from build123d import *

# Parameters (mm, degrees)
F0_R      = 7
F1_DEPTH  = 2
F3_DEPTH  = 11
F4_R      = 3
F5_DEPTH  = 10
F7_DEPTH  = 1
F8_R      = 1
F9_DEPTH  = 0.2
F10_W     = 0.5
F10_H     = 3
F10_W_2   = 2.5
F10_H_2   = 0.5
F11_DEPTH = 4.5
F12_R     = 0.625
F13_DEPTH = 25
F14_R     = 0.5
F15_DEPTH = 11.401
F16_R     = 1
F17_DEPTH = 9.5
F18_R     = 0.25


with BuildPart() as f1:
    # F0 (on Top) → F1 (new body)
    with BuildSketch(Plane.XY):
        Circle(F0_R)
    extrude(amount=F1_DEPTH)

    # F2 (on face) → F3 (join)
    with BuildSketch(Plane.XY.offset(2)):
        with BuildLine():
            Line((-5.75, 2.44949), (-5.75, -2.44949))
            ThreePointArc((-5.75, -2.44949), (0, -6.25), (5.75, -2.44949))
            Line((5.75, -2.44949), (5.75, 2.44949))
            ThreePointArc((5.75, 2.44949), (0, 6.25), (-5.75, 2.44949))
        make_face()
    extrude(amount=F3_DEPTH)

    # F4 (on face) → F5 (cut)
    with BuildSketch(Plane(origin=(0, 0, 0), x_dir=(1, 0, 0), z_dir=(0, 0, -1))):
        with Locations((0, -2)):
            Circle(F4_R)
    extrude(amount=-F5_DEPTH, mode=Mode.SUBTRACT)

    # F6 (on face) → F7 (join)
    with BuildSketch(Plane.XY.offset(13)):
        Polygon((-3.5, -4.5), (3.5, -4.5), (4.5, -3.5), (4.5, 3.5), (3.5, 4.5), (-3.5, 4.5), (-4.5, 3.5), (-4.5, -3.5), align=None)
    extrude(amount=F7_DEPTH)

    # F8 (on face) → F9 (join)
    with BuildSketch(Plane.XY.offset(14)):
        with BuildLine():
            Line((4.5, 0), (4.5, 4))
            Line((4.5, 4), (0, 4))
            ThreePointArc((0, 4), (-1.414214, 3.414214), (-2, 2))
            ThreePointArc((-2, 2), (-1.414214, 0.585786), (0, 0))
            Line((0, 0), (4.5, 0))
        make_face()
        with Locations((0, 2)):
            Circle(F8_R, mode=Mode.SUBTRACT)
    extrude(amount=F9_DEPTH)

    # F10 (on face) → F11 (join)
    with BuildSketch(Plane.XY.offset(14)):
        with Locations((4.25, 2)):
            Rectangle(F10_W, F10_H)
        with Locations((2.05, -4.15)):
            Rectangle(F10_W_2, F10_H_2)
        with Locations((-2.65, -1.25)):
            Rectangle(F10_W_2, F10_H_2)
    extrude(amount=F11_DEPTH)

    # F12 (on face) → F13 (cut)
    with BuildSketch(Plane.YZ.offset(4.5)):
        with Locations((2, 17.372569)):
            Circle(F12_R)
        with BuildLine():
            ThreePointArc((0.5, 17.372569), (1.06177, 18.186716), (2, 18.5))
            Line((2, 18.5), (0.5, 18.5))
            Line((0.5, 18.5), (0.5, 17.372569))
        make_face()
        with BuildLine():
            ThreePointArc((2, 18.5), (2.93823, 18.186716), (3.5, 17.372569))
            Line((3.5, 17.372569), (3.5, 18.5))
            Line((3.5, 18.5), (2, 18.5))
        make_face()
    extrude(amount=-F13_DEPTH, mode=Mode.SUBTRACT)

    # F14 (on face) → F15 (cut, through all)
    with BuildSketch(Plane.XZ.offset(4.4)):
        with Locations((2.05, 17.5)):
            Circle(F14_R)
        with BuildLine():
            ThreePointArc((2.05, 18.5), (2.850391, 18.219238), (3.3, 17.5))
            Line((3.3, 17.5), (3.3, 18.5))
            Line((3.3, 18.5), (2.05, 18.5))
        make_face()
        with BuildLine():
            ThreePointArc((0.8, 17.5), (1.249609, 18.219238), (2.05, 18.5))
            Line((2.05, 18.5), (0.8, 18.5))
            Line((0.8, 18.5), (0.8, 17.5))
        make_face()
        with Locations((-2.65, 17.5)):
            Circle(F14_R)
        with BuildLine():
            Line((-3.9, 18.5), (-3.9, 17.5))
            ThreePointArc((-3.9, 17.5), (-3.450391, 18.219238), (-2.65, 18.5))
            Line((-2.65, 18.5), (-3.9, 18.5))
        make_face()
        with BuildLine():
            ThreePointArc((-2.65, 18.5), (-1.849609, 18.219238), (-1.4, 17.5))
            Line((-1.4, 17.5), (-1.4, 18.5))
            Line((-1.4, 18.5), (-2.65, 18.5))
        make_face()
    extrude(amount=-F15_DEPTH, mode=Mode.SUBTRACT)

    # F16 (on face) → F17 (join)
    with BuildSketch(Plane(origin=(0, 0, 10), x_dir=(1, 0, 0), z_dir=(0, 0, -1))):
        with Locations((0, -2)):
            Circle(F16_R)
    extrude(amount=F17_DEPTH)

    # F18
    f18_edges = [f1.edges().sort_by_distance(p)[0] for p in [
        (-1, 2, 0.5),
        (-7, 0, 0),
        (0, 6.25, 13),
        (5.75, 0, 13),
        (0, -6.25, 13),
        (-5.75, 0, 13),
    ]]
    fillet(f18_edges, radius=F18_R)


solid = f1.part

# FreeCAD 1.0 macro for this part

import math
import FreeCAD as App
import Part
import Sketcher
from FreeCAD import Vector
Q = App.Units.Quantity


def edges_at(feature, points):
    """Names of the edges that pass closest to the given points."""
    edges = feature.Shape.Edges
    near = lambda p: min(range(len(edges)), key=lambda i: edges[i].distToShape(Part.Vertex(*p))[0])
    return sorted({f"Edge{near(p) + 1}" for p in points})

doc = App.newDocument("Part")
body = doc.addObject("PartDesign::Body", "Body")

sketch1 = doc.addObject("Sketcher::SketchObject", "Sketch")
body.addObject(sketch1)
sketch1.AttachmentSupport = (doc.XY_Plane, [""])
sketch1.MapMode = "FlatFace"
sketch1.addGeometry(Part.Circle(Vector(0, 0, 0), Vector(0, 0, 1), 7), False)
sketch1.addConstraint([
    Sketcher.Constraint("Coincident", 0, 3, -1, 1),
    Sketcher.Constraint("Diameter", 0, Q("14 mm")),
])
pad1 = doc.addObject("PartDesign::Pad", "Pad")
body.addObject(pad1)
pad1.Profile = sketch1
pad1.Length = 2

sketch2 = doc.addObject("Sketcher::SketchObject", "Sketch001")
body.addObject(sketch2)
sketch2.AttachmentSupport = (doc.XY_Plane, [""])
sketch2.MapMode = "FlatFace"
sketch2.AttachmentOffset = App.Placement(Vector(0, 0, 2), App.Rotation())
sketch2.addGeometry([
    Part.LineSegment(Vector(-5.8, 2.4, 0), Vector(-5.8, -2.4, 0)),
    Part.ArcOfCircle(Part.Circle(Vector(0, 0, 0), Vector(0, 0, 1), 6.3), math.radians(-157), math.radians(-23)),
    Part.LineSegment(Vector(5.8, -2.4, 0), Vector(5.8, 2.4, 0)),
    Part.ArcOfCircle(Part.Circle(Vector(0, 0, 0), Vector(0, 0, 1), 6.3), math.radians(23), math.radians(157)),
], False)
sketch2.addConstraint([
    Sketcher.Constraint("Coincident", 0, 2, 1, 1),
    Sketcher.Constraint("Coincident", 1, 2, 2, 1),
    Sketcher.Constraint("Coincident", 2, 2, 3, 1),
    Sketcher.Constraint("Coincident", 3, 2, 0, 1),
    Sketcher.Constraint("Vertical", 0),
    Sketcher.Constraint("Vertical", 2),
    Sketcher.Constraint("Coincident", 1, 3, -1, 1),
    Sketcher.Constraint("Coincident", 3, 3, -1, 1),
    Sketcher.Constraint("Equal", 1, 3),
    Sketcher.Constraint("Horizontal", 0, 2, 1, 2),
    Sketcher.Constraint("Radius", 1, Q("6.25 mm")),
    Sketcher.Constraint("DistanceX", 0, 2, 1, 2, Q("11.5 mm")),
])
pad2 = doc.addObject("PartDesign::Pad", "Pad001")
body.addObject(pad2)
pad2.Profile = sketch2
pad2.Length = 11

sketch3 = doc.addObject("Sketcher::SketchObject", "Sketch002")
body.addObject(sketch3)
sketch3.AttachmentSupport = (doc.XY_Plane, [""])
sketch3.MapMode = "FlatFace"
sketch3.addGeometry(Part.Circle(Vector(0, 2, 0), Vector(0, 0, 1), 3), False)
sketch3.addConstraint([
    Sketcher.Constraint("PointOnObject", 0, 3, -2),
    Sketcher.Constraint("Diameter", 0, Q("6 mm")),
    Sketcher.Constraint("DistanceY", -1, 1, 0, 3, Q("2 mm")),
])
pocket1 = doc.addObject("PartDesign::Pocket", "Pocket")
body.addObject(pocket1)
pocket1.Profile = sketch3
pocket1.Length = 10
pocket1.Reversed = True

sketch4 = doc.addObject("Sketcher::SketchObject", "Sketch003")
body.addObject(sketch4)
sketch4.AttachmentSupport = (doc.XY_Plane, [""])
sketch4.MapMode = "FlatFace"
sketch4.AttachmentOffset = App.Placement(Vector(0, 0, 13), App.Rotation())
sketch4.addGeometry([
    Part.LineSegment(Vector(-3.5, -4.5, 0), Vector(3.5, -4.5, 0)),
    Part.LineSegment(Vector(3.5, -4.5, 0), Vector(4.5, -3.5, 0)),
    Part.LineSegment(Vector(4.5, -3.5, 0), Vector(4.5, 3.5, 0)),
    Part.LineSegment(Vector(4.5, 3.5, 0), Vector(3.5, 4.5, 0)),
    Part.LineSegment(Vector(3.5, 4.5, 0), Vector(-3.5, 4.5, 0)),
    Part.LineSegment(Vector(-3.5, 4.5, 0), Vector(-4.5, 3.5, 0)),
    Part.LineSegment(Vector(-4.5, 3.5, 0), Vector(-4.5, -3.5, 0)),
    Part.LineSegment(Vector(-4.5, -3.5, 0), Vector(-3.5, -4.5, 0)),
], False)
sketch4.addConstraint([
    Sketcher.Constraint("Coincident", 0, 2, 1, 1),
    Sketcher.Constraint("Coincident", 1, 2, 2, 1),
    Sketcher.Constraint("Coincident", 2, 2, 3, 1),
    Sketcher.Constraint("Coincident", 3, 2, 4, 1),
    Sketcher.Constraint("Coincident", 4, 2, 5, 1),
    Sketcher.Constraint("Coincident", 5, 2, 6, 1),
    Sketcher.Constraint("Coincident", 6, 2, 7, 1),
    Sketcher.Constraint("Coincident", 7, 2, 0, 1),
    Sketcher.Constraint("Horizontal", 0),
    Sketcher.Constraint("Vertical", 2),
    Sketcher.Constraint("Horizontal", 4),
    Sketcher.Constraint("Vertical", 6),
    Sketcher.Constraint("Symmetric", 0, 2, 4, 2, -1, 1),
    Sketcher.Constraint("Symmetric", 1, 2, 5, 2, -1, 1),
    Sketcher.Constraint("Perpendicular", 1, 3),
    Sketcher.Constraint("Perpendicular", 5, 7),
    Sketcher.Constraint("Horizontal", 2, 2, 5, 2),
    Sketcher.Constraint("Horizontal", 1, 2, 6, 2),
    Sketcher.Constraint("Vertical", 0, 2, 3, 2),
    Sketcher.Constraint("Equal", 4, 2),
    Sketcher.Constraint("DistanceX", 0, 1, 0, 2, Q("7 mm")),
    Sketcher.Constraint("DistanceX", 0, 2, 1, 2, Q("1 mm")),
])
pad3 = doc.addObject("PartDesign::Pad", "Pad002")
body.addObject(pad3)
pad3.Profile = sketch4
pad3.Length = 1

sketch5 = doc.addObject("Sketcher::SketchObject", "Sketch004")
body.addObject(sketch5)
sketch5.AttachmentSupport = (doc.XY_Plane, [""])
sketch5.MapMode = "FlatFace"
sketch5.AttachmentOffset = App.Placement(Vector(0, 0, 14), App.Rotation())
sketch5.addGeometry([
    Part.LineSegment(Vector(4.5, 0, 0), Vector(4.5, 4, 0)),
    Part.LineSegment(Vector(4.5, 4, 0), Vector(0, 4, 0)),
    Part.ArcOfCircle(Part.Circle(Vector(0, 2, 0), Vector(0, 0, 1), 2), math.radians(90), math.radians(180)),
    Part.ArcOfCircle(Part.Circle(Vector(0, 2, 0), Vector(0, 0, 1), 2), math.radians(180), math.radians(270)),
    Part.LineSegment(Vector(0, 0, 0), Vector(4.5, 0, 0)),
    Part.Circle(Vector(0, 2, 0), Vector(0, 0, 1), 1),
], False)
sketch5.addConstraint([
    Sketcher.Constraint("Coincident", 0, 2, 1, 1),
    Sketcher.Constraint("Tangent", 1, 2, 2, 1),
    Sketcher.Constraint("Tangent", 2, 2, 3, 1),
    Sketcher.Constraint("Tangent", 3, 2, 4, 1),
    Sketcher.Constraint("Coincident", 4, 2, 0, 1),
    Sketcher.Constraint("Vertical", 0),
    Sketcher.Constraint("Horizontal", 1),
    Sketcher.Constraint("Horizontal", 4),
    Sketcher.Constraint("Coincident", 3, 2, -1, 1),
    Sketcher.Constraint("Coincident", 5, 3, 2, 3),
    Sketcher.Constraint("Equal", 2, 3),
    Sketcher.Constraint("Horizontal", 5, 3, 2, 2),
    Sketcher.Constraint("Diameter", 5, Q("2 mm")),
    Sketcher.Constraint("Radius", 2, Q("1.999999 mm")),
    Sketcher.Constraint("DistanceX", 1, 2, 1, 1, Q("4.5 mm")),
])
pad4 = doc.addObject("PartDesign::Pad", "Pad003")
body.addObject(pad4)
pad4.Profile = sketch5
pad4.Length = 0.2

sketch6 = doc.addObject("Sketcher::SketchObject", "Sketch005")
body.addObject(sketch6)
sketch6.AttachmentSupport = (doc.XY_Plane, [""])
sketch6.MapMode = "FlatFace"
sketch6.AttachmentOffset = App.Placement(Vector(0, 0, 14), App.Rotation())
sketch6.addGeometry([
    Part.LineSegment(Vector(4, 3.5, 0), Vector(4, 0.5, 0)),
    Part.LineSegment(Vector(4, 0.5, 0), Vector(4.5, 0.5, 0)),
    Part.LineSegment(Vector(4.5, 0.5, 0), Vector(4.5, 3.5, 0)),
    Part.LineSegment(Vector(4.5, 3.5, 0), Vector(4, 3.5, 0)),
    Part.LineSegment(Vector(0.8, -3.9, 0), Vector(0.8, -4.4, 0)),
    Part.LineSegment(Vector(0.8, -4.4, 0), Vector(3.3, -4.4, 0)),
    Part.LineSegment(Vector(3.3, -4.4, 0), Vector(3.3, -3.9, 0)),
    Part.LineSegment(Vector(3.3, -3.9, 0), Vector(0.8, -3.9, 0)),
    Part.LineSegment(Vector(-3.9, -1, 0), Vector(-3.9, -1.5, 0)),
    Part.LineSegment(Vector(-3.9, -1.5, 0), Vector(-1.4, -1.5, 0)),
    Part.LineSegment(Vector(-1.4, -1.5, 0), Vector(-1.4, -1, 0)),
    Part.LineSegment(Vector(-1.4, -1, 0), Vector(-3.9, -1, 0)),
], False)
sketch6.addConstraint([
    Sketcher.Constraint("Coincident", 0, 2, 1, 1),
    Sketcher.Constraint("Coincident", 1, 2, 2, 1),
    Sketcher.Constraint("Coincident", 2, 2, 3, 1),
    Sketcher.Constraint("Coincident", 3, 2, 0, 1),
    Sketcher.Constraint("Coincident", 4, 2, 5, 1),
    Sketcher.Constraint("Coincident", 5, 2, 6, 1),
    Sketcher.Constraint("Coincident", 6, 2, 7, 1),
    Sketcher.Constraint("Coincident", 7, 2, 4, 1),
    Sketcher.Constraint("Coincident", 8, 2, 9, 1),
    Sketcher.Constraint("Coincident", 9, 2, 10, 1),
    Sketcher.Constraint("Coincident", 10, 2, 11, 1),
    Sketcher.Constraint("Coincident", 11, 2, 8, 1),
    Sketcher.Constraint("Vertical", 0),
    Sketcher.Constraint("Horizontal", 1),
    Sketcher.Constraint("Vertical", 2),
    Sketcher.Constraint("Horizontal", 3),
    Sketcher.Constraint("Vertical", 4),
    Sketcher.Constraint("Horizontal", 5),
    Sketcher.Constraint("Vertical", 6),
    Sketcher.Constraint("Horizontal", 7),
    Sketcher.Constraint("Vertical", 8),
    Sketcher.Constraint("Horizontal", 9),
    Sketcher.Constraint("Vertical", 10),
    Sketcher.Constraint("Horizontal", 11),
    Sketcher.Constraint("Equal", 7, 9),
    Sketcher.Constraint("Equal", 3, 4),
    Sketcher.Constraint("Equal", 6, 8),
    Sketcher.Constraint("DistanceY", 0, 2, 0, 1, Q("3 mm")),
    Sketcher.Constraint("DistanceX", 1, 1, 1, 2, Q("0.5 mm")),
    Sketcher.Constraint("DistanceX", 5, 1, 5, 2, Q("2.5 mm")),
    Sketcher.Constraint("DistanceX", -1, 1, 0, 2, Q("4 mm")),
    Sketcher.Constraint("DistanceY", 10, 2, -1, 1, Q("1 mm")),
    Sketcher.Constraint("DistanceY", 8, 2, 0, 2, Q("2 mm")),
    Sketcher.Constraint("DistanceX", -1, 1, 4, 2, Q("0.8 mm")),
    Sketcher.Constraint("DistanceY", 4, 2, -1, 1, Q("4.4 mm")),
    Sketcher.Constraint("DistanceX", 8, 2, -1, 1, Q("3.9 mm")),
])
pad5 = doc.addObject("PartDesign::Pad", "Pad004")
body.addObject(pad5)
pad5.Profile = sketch6
pad5.Length = 4.5

sketch7 = doc.addObject("Sketcher::SketchObject", "Sketch006")
body.addObject(sketch7)
sketch7.AttachmentSupport = (doc.YZ_Plane, [""])
sketch7.MapMode = "FlatFace"
sketch7.AttachmentOffset = App.Placement(Vector(0, 0, 4.5), App.Rotation())
sketch7.addGeometry([
    Part.Circle(Vector(2, 17.4, 0), Vector(0, 0, 1), 0.6),
    Part.ArcOfCircle(Part.Circle(Vector(2, 16.9, 0), Vector(0, 0, 1), 1.6), math.radians(90), math.radians(164)),
    Part.LineSegment(Vector(2, 18.5, 0), Vector(0.5, 18.5, 0)),
    Part.LineSegment(Vector(0.5, 18.5, 0), Vector(0.5, 17.4, 0)),
    Part.ArcOfCircle(Part.Circle(Vector(2, 16.9, 0), Vector(0, 0, 1), 1.6), math.radians(16), math.radians(90)),
    Part.LineSegment(Vector(3.5, 17.4, 0), Vector(3.5, 18.5, 0)),
    Part.LineSegment(Vector(3.5, 18.5, 0), Vector(2, 18.5, 0)),
], False)
sketch7.addConstraint([
    Sketcher.Constraint("Tangent", 1, 1, 2, 1),
    Sketcher.Constraint("Coincident", 2, 2, 3, 1),
    Sketcher.Constraint("Coincident", 3, 2, 1, 2),
    Sketcher.Constraint("Coincident", 4, 1, 5, 1),
    Sketcher.Constraint("Coincident", 5, 2, 6, 1),
    Sketcher.Constraint("Tangent", 6, 2, 4, 2),
    Sketcher.Constraint("Horizontal", 2),
    Sketcher.Constraint("Vertical", 3),
    Sketcher.Constraint("Vertical", 5),
    Sketcher.Constraint("Horizontal", 6),
    Sketcher.Constraint("Coincident", 4, 3, 1, 3),
    Sketcher.Constraint("Equal", 1, 4),
    Sketcher.Constraint("Horizontal", 0, 3, 3, 2),
    Sketcher.Constraint("Horizontal", 3, 2, 4, 1),
    Sketcher.Constraint("Vertical", 0, 3, 1, 3),
    Sketcher.Constraint("Diameter", 0, Q("1.25 mm")),
    Sketcher.Constraint("DistanceX", 2, 2, 2, 1, Q("1.5 mm")),
    Sketcher.Constraint("DistanceX", -1, 1, 0, 3, Q("2 mm")),
    Sketcher.Constraint("DistanceY", -1, 1, 1, 1, Q("18.5 mm")),
    Sketcher.Constraint("Radius", 1, Q("1.56156 mm")),
])
pocket2 = doc.addObject("PartDesign::Pocket", "Pocket001")
body.addObject(pocket2)
pocket2.Profile = sketch7
pocket2.Length = 25

sketch8 = doc.addObject("Sketcher::SketchObject", "Sketch007")
body.addObject(sketch8)
sketch8.AttachmentSupport = (doc.XZ_Plane, [""])
sketch8.MapMode = "FlatFace"
sketch8.AttachmentOffset = App.Placement(Vector(0, 0, 4.4), App.Rotation())
sketch8.addGeometry([
    Part.Circle(Vector(2, 17.5, 0), Vector(0, 0, 1), 0.5),
    Part.ArcOfCircle(Part.Circle(Vector(2.1, 17.2, 0), Vector(0, 0, 1), 1.3), math.radians(13), math.radians(90)),
    Part.LineSegment(Vector(3.3, 17.5, 0), Vector(3.3, 18.5, 0)),
    Part.LineSegment(Vector(3.3, 18.5, 0), Vector(2, 18.5, 0)),
    Part.ArcOfCircle(Part.Circle(Vector(2, 17.2, 0), Vector(0, 0, 1), 1.3), math.radians(90), math.radians(167)),
    Part.LineSegment(Vector(2, 18.5, 0), Vector(0.8, 18.5, 0)),
    Part.LineSegment(Vector(0.8, 18.5, 0), Vector(0.8, 17.5, 0)),
    Part.Circle(Vector(-2.6, 17.5, 0), Vector(0, 0, 1), 0.5),
    Part.LineSegment(Vector(-3.9, 18.5, 0), Vector(-3.9, 17.5, 0)),
    Part.ArcOfCircle(Part.Circle(Vector(-2.7, 17.2, 0), Vector(0, 0, 1), 1.3), math.radians(90), math.radians(167)),
    Part.LineSegment(Vector(-2.6, 18.5, 0), Vector(-3.9, 18.5, 0)),
    Part.ArcOfCircle(Part.Circle(Vector(-2.6, 17.2, 0), Vector(0, 0, 1), 1.3), math.radians(13), math.radians(90)),
    Part.LineSegment(Vector(-1.4, 17.5, 0), Vector(-1.4, 18.5, 0)),
    Part.LineSegment(Vector(-1.4, 18.5, 0), Vector(-2.6, 18.5, 0)),
], False)
sketch8.addConstraint([
    Sketcher.Constraint("Coincident", 1, 1, 2, 1),
    Sketcher.Constraint("Coincident", 2, 2, 3, 1),
    Sketcher.Constraint("Tangent", 3, 2, 1, 2),
    Sketcher.Constraint("Tangent", 4, 1, 5, 1),
    Sketcher.Constraint("Coincident", 5, 2, 6, 1),
    Sketcher.Constraint("Coincident", 6, 2, 4, 2),
    Sketcher.Constraint("Coincident", 8, 2, 9, 2),
    Sketcher.Constraint("Tangent", 9, 1, 10, 1),
    Sketcher.Constraint("Coincident", 10, 2, 8, 1),
    Sketcher.Constraint("Coincident", 11, 1, 12, 1),
    Sketcher.Constraint("Coincident", 12, 2, 13, 1),
    Sketcher.Constraint("Tangent", 13, 2, 11, 2),
    Sketcher.Constraint("Vertical", 2),
    Sketcher.Constraint("Horizontal", 3),
    Sketcher.Constraint("Horizontal", 5),
    Sketcher.Constraint("Vertical", 6),
    Sketcher.Constraint("Vertical", 8),
    Sketcher.Constraint("Horizontal", 10),
    Sketcher.Constraint("Vertical", 12),
    Sketcher.Constraint("Horizontal", 13),
    Sketcher.Constraint("Coincident", 4, 3, 1, 3),
    Sketcher.Constraint("Coincident", 11, 3, 9, 3),
    Sketcher.Constraint("Equal", 1, 4),
    Sketcher.Constraint("Equal", 0, 7),
    Sketcher.Constraint("Equal", 4, 9),
    Sketcher.Constraint("Equal", 9, 11),
    Sketcher.Constraint("Horizontal", 0, 3, 7, 3),
    Sketcher.Constraint("Horizontal", 4, 3, 9, 3),
    Sketcher.Constraint("Horizontal", 7, 3, 1, 1),
    Sketcher.Constraint("Horizontal", 1, 1, 6, 2),
    Sketcher.Constraint("Horizontal", 6, 2, 8, 2),
    Sketcher.Constraint("Horizontal", 8, 2, 11, 1),
    Sketcher.Constraint("Vertical", 0, 3, 1, 3),
    Sketcher.Constraint("Vertical", 7, 3, 9, 3),
    Sketcher.Constraint("Diameter", 0, Q("1 mm")),
    Sketcher.Constraint("DistanceY", 2, 1, 2, 2, Q("1 mm")),
    Sketcher.Constraint("DistanceX", 3, 2, 3, 1, Q("1.25 mm")),
    Sketcher.Constraint("DistanceY", -1, 1, 0, 3, Q("17.5 mm")),
    Sketcher.Constraint("DistanceX", -1, 1, 1, 1, Q("3.3 mm")),
    Sketcher.Constraint("DistanceX", 8, 2, -1, 1, Q("3.9 mm")),
])
pocket3 = doc.addObject("PartDesign::Pocket", "Pocket002")
body.addObject(pocket3)
pocket3.Profile = sketch8
pocket3.Type = "ThroughAll"

sketch9 = doc.addObject("Sketcher::SketchObject", "Sketch008")
body.addObject(sketch9)
sketch9.AttachmentSupport = (doc.XY_Plane, [""])
sketch9.MapMode = "FlatFace"
sketch9.AttachmentOffset = App.Placement(Vector(0, 0, 10), App.Rotation())
sketch9.addGeometry(Part.Circle(Vector(0, 2, 0), Vector(0, 0, 1), 1), False)
sketch9.addConstraint([
    Sketcher.Constraint("PointOnObject", 0, 3, -2),
    Sketcher.Constraint("Diameter", 0, Q("2 mm")),
    Sketcher.Constraint("DistanceY", -1, 1, 0, 3, Q("2 mm")),
])
pad6 = doc.addObject("PartDesign::Pad", "Pad005")
body.addObject(pad6)
pad6.Profile = sketch9
pad6.Length = 9.5
pad6.Reversed = True
doc.recompute()

fillet = doc.addObject("PartDesign::Fillet", "Fillet")
body.addObject(fillet)
fillet.Base = (pad6, edges_at(pad6, [
    (-1, 2, 0.5),
    (-7, 0, 0),
    (0, 6.25, 13),
    (5.75, 0, 13),
    (0, -6.25, 13),
    (-5.75, 0, 13),
]))
fillet.Radius = 0.25

doc.recompute()
